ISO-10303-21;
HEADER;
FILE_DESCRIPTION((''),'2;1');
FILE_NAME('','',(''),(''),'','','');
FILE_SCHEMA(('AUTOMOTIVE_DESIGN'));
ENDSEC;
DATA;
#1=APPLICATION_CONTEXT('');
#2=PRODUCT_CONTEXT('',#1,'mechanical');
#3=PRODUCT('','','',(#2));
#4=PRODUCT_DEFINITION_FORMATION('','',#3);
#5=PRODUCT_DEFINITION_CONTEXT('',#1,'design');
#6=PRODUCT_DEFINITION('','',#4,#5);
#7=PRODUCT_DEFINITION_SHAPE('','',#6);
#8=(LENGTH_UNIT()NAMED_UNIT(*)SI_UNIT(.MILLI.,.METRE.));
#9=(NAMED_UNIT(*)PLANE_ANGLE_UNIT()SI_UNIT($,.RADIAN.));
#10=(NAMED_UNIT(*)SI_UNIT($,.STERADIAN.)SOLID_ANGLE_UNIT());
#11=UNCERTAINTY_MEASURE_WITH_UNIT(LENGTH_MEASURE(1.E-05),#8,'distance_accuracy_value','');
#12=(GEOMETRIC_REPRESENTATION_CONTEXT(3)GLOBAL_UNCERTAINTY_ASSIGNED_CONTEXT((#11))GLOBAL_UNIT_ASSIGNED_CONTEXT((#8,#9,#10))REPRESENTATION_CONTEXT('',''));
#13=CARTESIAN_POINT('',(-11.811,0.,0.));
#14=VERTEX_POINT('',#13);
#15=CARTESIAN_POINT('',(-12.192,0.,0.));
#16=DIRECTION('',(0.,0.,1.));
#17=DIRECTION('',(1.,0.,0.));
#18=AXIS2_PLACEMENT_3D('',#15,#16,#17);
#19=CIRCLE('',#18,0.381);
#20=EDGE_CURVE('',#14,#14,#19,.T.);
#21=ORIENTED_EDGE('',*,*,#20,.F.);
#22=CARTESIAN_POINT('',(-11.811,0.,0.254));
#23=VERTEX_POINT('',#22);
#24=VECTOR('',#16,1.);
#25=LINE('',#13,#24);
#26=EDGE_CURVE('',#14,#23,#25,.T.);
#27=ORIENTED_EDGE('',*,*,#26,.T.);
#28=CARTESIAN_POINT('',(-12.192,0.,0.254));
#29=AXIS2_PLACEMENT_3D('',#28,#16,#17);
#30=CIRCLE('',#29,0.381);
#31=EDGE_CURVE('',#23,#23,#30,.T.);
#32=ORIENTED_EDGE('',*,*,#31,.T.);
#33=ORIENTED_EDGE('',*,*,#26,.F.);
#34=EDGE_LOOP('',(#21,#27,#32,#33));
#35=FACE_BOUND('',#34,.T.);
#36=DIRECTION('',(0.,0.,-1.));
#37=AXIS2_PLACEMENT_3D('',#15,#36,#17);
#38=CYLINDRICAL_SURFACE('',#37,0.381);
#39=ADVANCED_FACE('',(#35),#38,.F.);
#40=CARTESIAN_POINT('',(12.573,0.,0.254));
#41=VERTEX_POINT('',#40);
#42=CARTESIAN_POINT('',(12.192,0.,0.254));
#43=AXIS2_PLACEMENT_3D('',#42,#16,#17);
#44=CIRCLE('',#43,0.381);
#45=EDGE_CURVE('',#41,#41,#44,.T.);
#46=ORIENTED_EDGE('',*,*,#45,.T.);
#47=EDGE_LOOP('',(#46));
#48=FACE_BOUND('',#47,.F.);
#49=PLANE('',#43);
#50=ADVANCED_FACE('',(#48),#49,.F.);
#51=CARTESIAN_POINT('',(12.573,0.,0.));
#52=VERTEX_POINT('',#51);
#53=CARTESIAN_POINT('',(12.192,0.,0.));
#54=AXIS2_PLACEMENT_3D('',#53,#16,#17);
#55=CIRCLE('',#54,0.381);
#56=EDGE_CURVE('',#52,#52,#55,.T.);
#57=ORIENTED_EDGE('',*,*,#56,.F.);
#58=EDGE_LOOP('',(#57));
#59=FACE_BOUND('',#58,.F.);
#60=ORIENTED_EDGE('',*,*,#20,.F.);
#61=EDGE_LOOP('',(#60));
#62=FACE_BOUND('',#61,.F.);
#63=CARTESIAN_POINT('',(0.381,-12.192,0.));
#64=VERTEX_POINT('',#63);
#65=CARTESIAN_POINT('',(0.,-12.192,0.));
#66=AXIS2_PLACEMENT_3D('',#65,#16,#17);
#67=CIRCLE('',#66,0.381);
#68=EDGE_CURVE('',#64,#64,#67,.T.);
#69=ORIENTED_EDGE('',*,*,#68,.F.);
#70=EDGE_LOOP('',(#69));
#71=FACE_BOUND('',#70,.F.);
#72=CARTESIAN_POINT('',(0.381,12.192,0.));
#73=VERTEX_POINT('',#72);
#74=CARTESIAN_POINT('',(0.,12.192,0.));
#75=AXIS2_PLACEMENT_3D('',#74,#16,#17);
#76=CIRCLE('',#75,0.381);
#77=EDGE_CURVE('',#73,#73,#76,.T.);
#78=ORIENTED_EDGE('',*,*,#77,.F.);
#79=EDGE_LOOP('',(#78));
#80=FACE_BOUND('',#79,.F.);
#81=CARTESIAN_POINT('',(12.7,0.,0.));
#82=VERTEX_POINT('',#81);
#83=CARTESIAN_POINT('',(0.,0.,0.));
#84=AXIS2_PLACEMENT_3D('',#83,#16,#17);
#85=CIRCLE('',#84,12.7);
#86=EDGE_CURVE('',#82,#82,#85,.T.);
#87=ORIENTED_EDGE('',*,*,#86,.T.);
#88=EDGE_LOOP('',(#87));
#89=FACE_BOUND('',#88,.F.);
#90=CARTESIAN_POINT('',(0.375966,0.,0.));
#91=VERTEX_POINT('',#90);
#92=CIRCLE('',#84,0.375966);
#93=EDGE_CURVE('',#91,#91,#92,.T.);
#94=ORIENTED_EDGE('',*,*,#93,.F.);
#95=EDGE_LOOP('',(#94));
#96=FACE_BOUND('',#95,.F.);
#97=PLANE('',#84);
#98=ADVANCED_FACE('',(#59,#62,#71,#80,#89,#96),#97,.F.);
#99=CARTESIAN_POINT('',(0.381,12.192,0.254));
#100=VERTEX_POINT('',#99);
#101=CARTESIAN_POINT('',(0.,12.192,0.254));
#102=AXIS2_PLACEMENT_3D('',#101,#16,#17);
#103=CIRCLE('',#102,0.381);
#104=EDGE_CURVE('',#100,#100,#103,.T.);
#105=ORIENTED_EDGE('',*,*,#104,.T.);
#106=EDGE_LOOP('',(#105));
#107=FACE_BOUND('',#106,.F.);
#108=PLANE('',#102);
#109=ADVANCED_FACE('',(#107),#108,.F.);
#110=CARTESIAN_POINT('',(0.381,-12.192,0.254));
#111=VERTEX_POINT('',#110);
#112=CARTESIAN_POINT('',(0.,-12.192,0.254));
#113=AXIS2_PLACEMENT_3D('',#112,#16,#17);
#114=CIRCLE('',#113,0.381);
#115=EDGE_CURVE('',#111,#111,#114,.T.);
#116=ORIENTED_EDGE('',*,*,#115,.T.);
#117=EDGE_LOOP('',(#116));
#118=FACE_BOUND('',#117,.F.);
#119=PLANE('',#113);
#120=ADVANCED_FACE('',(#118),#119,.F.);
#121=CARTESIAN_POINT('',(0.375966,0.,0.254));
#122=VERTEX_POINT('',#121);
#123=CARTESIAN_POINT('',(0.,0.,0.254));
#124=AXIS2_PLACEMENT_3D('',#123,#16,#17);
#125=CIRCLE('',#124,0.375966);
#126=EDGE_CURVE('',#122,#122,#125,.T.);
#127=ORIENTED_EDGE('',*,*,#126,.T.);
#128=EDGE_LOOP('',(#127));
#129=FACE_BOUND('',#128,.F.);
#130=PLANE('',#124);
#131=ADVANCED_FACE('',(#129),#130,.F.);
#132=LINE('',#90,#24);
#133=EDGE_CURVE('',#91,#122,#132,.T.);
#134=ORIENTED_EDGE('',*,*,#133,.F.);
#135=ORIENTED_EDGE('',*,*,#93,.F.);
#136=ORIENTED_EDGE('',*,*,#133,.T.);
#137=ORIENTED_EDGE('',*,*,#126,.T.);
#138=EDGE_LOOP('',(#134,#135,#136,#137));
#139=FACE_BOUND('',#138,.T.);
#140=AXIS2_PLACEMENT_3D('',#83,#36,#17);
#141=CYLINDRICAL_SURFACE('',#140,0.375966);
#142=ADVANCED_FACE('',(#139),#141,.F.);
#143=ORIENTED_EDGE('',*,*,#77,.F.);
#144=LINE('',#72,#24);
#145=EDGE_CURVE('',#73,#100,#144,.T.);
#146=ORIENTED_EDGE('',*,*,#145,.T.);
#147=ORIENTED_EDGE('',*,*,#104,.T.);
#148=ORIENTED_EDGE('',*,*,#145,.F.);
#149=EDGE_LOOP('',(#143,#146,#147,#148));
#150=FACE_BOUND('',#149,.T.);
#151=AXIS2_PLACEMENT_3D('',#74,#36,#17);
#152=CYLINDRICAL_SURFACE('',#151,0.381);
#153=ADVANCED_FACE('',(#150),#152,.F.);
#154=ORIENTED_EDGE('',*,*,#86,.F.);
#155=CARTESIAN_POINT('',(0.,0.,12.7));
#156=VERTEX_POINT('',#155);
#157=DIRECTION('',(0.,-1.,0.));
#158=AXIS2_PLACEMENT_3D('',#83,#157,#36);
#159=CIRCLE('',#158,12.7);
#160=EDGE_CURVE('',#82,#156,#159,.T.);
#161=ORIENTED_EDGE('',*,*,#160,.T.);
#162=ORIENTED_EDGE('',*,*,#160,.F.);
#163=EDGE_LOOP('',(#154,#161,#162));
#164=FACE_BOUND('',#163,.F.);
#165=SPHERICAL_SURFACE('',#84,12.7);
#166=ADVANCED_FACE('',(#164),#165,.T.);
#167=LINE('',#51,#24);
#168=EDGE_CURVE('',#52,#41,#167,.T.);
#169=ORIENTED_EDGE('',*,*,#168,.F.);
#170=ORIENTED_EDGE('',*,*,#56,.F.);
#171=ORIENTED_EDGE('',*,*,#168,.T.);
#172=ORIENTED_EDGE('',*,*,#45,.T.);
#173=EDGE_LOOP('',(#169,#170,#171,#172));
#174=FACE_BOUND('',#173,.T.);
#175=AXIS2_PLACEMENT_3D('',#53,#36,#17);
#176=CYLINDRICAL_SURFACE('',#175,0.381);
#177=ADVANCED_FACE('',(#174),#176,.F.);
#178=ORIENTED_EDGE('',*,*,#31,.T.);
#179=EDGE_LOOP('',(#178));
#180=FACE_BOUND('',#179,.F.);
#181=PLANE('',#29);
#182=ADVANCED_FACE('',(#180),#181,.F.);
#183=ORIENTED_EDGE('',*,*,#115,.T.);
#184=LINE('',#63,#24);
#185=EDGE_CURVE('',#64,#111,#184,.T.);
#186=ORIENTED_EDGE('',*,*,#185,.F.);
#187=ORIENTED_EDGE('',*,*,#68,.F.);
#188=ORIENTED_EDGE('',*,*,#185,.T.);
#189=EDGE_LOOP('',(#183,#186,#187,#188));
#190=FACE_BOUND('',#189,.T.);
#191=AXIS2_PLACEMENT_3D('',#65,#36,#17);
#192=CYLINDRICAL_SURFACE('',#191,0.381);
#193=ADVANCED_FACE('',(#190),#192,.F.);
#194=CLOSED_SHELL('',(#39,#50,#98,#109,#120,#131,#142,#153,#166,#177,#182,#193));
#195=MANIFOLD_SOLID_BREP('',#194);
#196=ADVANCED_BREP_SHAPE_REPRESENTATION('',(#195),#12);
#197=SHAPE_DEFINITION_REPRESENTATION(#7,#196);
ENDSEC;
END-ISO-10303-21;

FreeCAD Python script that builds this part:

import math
import FreeCAD as App
import Part
import Sketcher

V = App.Vector
Q = App.Units.Quantity

doc = App.newDocument("Part")
body = doc.addObject("PartDesign::Body", "Body")

sketch1 = body.newObject("Sketcher::SketchObject", "Sketch")
sketch1.AttachmentSupport = (doc.getObject("XZ_Plane"), [""])
sketch1.MapMode = "FlatFace"
sketch1.addGeometry(Part.LineSegment(V(0, 13, 0), V(0, -13, 0)), False)
sketch1.addGeometry(Part.ArcOfCircle(Part.Circle(V(0, 0, 0), V(0, 0, 1), 13), math.radians(-90), math.radians(90)), False)
sketch1.addConstraint(Sketcher.Constraint("Coincident", 0, 1, 1, 2))
sketch1.addConstraint(Sketcher.Constraint("Coincident", 1, 1, 0, 2))
sketch1.addConstraint(Sketcher.Constraint("Vertical", 0))
sketch1.addConstraint(Sketcher.Constraint("Coincident", 1, 3, -1, 1))
sketch1.addConstraint(Sketcher.Constraint("PointOnObject", 0, 1, -2))
sketch1.addConstraint(Sketcher.Constraint("Radius", 1, Q("0.5 in")))
revolution = body.newObject("PartDesign::Revolution", "Revolution")
revolution.Profile = sketch1
revolution.ReferenceAxis = (sketch1, ["V_Axis"])
revolution.Angle = 360

sketch2 = body.newObject("Sketcher::SketchObject", "Sketch001")
sketch2.AttachmentSupport = (doc.getObject("XY_Plane"), [""])
sketch2.MapMode = "FlatFace"
sketch2.addGeometry(Part.LineSegment(V(-15, 13, 0), V(-15, -13, 0)), False)
sketch2.addGeometry(Part.LineSegment(V(-15, -13, 0), V(15, -13, 0)), False)
sketch2.addGeometry(Part.LineSegment(V(15, -13, 0), V(15, 13, 0)), False)
sketch2.addGeometry(Part.LineSegment(V(15, 13, 0), V(-15, 13, 0)), False)
sketch2.addConstraint(Sketcher.Constraint("Coincident", 0, 2, 1, 1))
sketch2.addConstraint(Sketcher.Constraint("Coincident", 1, 2, 2, 1))
sketch2.addConstraint(Sketcher.Constraint("Coincident", 2, 2, 3, 1))
sketch2.addConstraint(Sketcher.Constraint("Coincident", 3, 2, 0, 1))
sketch2.addConstraint(Sketcher.Constraint("Vertical", 0))
sketch2.addConstraint(Sketcher.Constraint("Horizontal", 1))
sketch2.addConstraint(Sketcher.Constraint("Vertical", 2))
sketch2.addConstraint(Sketcher.Constraint("Horizontal", 3))
sketch2.addConstraint(Sketcher.Constraint("Symmetric", 0, 2, 2, 2, -1, 1))
sketch2.addConstraint(Sketcher.Constraint("DistanceX", 1, 1, 1, 2, 29.70758))
sketch2.addConstraint(Sketcher.Constraint("DistanceY", 0, 2, 0, 1, 25.697972))
pocket1 = body.newObject("PartDesign::Pocket", "Pocket")
pocket1.Profile = sketch2
pocket1.Length = Q("1 in")

sketch3 = body.newObject("Sketcher::SketchObject", "Sketch002")
sketch3.AttachmentSupport = (doc.getObject("XY_Plane"), [""])
sketch3.MapMode = "FlatFace"
sketch3.addGeometry(Part.Circle(V(0, 0, 0), V(0, 0, 1), 0.38), False)
sketch3.addConstraint(Sketcher.Constraint("Coincident", 0, 3, -1, 1))
sketch3.addConstraint(Sketcher.Constraint("Diameter", 0, 0.751932))
pocket2 = body.newObject("PartDesign::Pocket", "Pocket001")
pocket2.Profile = sketch3
pocket2.Length = Q("0.01 in")
pocket2.Reversed = True

sketch4 = body.newObject("Sketcher::SketchObject", "Sketch003")
sketch4.AttachmentSupport = (doc.getObject("XY_Plane"), [""])
sketch4.MapMode = "FlatFace"
sketch4.addGeometry(Part.Circle(V(0, 0, 0), V(0, 0, 1), 0.38), False)
sketch4.addGeometry(Part.Circle(V(0, -12.19, 0), V(0, 0, 1), 0.38), False)
sketch4.addGeometry(Part.Circle(V(0, 12.19, 0), V(0, 0, 1), 0.38), False)
sketch4.addGeometry(Part.Circle(V(12.19, 0, 0), V(0, 0, 1), 0.38), False)
sketch4.addGeometry(Part.Circle(V(-12.19, 0, 0), V(0, 0, 1), 0.38), False)
sketch4.addConstraint(Sketcher.Constraint("Coincident", 0, 3, -1, 1))
sketch4.addConstraint(Sketcher.Constraint("Equal", 1, 2))
sketch4.addConstraint(Sketcher.Constraint("Equal", 2, 3))
sketch4.addConstraint(Sketcher.Constraint("Equal", 3, 4))
sketch4.addConstraint(Sketcher.Constraint("Symmetric", 1, 3, 2, 3, -1, 1))
sketch4.addConstraint(Sketcher.Constraint("Symmetric", 3, 3, 4, 3, -1, 1))
sketch4.addConstraint(Sketcher.Constraint("PointOnObject", 1, 3, -2))
sketch4.addConstraint(Sketcher.Constraint("PointOnObject", 3, 3, -1))
sketch4.addConstraint(Sketcher.Constraint("Diameter", 1, Q("0.03 in")))
sketch4.addConstraint(Sketcher.Constraint("DistanceY", 1, 3, -1, 1, Q("0.48 in")))
sketch4.addConstraint(Sketcher.Constraint("DistanceX", -1, 1, 3, 3, Q("0.48 in")))
sketch4.addConstraint(Sketcher.Constraint("Diameter", 0, 0.751932))
pocket3 = body.newObject("PartDesign::Pocket", "Pocket002")
pocket3.Profile = sketch4
pocket3.Length = Q("0.01 in")
pocket3.Reversed = True

doc.recompute()
